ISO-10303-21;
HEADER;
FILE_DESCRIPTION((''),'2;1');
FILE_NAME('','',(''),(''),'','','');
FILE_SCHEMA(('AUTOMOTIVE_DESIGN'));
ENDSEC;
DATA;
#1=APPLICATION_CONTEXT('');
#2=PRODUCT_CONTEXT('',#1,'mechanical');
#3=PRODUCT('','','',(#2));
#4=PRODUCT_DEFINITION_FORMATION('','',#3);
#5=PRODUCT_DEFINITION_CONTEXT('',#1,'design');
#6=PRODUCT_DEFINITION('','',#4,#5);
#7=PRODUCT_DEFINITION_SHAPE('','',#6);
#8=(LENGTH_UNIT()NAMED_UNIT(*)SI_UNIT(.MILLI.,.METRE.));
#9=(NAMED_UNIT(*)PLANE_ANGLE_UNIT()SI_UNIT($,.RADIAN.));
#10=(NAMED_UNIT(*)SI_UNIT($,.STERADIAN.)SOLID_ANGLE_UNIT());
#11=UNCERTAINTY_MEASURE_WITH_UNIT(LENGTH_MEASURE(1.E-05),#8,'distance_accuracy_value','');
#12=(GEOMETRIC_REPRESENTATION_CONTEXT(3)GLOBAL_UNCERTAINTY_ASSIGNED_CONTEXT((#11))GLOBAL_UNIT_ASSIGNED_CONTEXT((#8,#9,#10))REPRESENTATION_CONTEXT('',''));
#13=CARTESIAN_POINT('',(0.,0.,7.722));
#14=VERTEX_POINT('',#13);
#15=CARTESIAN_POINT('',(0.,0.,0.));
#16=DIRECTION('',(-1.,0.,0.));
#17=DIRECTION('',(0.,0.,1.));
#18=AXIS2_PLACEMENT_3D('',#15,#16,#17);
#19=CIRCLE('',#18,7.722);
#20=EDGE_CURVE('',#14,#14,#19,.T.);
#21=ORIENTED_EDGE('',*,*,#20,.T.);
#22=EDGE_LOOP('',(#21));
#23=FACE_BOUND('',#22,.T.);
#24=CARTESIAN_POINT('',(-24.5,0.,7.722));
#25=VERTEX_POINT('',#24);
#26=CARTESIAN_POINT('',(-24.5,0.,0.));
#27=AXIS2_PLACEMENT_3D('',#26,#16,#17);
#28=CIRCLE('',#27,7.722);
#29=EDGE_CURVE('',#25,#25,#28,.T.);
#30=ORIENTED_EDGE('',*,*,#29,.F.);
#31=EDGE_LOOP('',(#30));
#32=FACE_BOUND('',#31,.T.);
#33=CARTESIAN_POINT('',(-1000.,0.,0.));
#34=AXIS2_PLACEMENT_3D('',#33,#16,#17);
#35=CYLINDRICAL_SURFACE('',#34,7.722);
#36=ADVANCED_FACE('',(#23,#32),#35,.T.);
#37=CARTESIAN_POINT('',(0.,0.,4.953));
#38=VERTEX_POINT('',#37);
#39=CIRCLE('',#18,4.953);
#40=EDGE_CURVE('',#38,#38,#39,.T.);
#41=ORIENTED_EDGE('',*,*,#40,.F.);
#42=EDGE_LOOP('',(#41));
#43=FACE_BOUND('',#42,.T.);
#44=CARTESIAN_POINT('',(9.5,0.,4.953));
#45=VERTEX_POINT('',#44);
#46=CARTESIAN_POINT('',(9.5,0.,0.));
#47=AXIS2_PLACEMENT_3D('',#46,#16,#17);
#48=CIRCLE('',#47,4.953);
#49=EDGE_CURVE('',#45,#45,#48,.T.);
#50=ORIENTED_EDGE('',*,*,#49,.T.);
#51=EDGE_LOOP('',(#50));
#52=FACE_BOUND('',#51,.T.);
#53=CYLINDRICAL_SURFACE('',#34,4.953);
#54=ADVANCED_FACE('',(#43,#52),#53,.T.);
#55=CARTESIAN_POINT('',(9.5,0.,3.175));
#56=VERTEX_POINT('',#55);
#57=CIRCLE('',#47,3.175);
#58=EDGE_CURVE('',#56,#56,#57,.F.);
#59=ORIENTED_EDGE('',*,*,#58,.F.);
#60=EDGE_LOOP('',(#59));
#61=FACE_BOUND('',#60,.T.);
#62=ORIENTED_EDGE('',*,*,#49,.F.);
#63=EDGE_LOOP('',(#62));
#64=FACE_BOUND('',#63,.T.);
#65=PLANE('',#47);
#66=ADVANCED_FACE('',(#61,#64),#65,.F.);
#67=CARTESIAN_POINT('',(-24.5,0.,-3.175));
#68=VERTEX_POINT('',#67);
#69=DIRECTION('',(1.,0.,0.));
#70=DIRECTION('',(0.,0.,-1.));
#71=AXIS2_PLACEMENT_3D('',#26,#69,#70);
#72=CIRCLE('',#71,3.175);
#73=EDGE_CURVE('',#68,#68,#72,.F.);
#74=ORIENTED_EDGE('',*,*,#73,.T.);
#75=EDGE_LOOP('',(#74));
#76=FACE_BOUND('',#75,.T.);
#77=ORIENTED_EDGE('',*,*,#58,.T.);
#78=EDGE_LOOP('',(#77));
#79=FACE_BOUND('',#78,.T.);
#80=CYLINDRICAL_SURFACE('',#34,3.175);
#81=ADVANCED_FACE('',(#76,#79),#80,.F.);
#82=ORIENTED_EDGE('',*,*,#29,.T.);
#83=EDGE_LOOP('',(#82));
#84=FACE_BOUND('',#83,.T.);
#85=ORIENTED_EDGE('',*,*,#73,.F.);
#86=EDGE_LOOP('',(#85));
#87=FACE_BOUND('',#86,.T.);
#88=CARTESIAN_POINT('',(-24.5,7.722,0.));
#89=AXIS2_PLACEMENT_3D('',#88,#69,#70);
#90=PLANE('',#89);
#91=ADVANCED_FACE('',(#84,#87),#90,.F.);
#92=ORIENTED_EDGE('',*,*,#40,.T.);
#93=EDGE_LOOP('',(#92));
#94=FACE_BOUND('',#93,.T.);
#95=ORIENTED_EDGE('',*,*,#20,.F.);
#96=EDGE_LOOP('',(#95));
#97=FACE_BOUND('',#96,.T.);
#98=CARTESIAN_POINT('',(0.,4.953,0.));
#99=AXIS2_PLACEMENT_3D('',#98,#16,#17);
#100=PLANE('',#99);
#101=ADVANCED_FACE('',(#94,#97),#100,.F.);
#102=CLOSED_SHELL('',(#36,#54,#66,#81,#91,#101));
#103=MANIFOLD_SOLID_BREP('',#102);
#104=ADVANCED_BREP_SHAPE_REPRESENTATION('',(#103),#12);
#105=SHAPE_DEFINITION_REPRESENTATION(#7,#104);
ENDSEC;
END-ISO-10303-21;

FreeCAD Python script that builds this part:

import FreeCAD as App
import Part
import Sketcher
Q = App.Units.Quantity


def add_polygon(sketch, points):
    """Adds a closed chain of lines whose ends are joined by coincident constraints."""
    first, n = sketch.GeometryCount, len(points)
    for a, b in zip(points, points[1:] + points[:1]):
        sketch.addGeometry(Part.LineSegment(App.Vector(*a, 0), App.Vector(*b, 0)), False)
    for i in range(n):
        sketch.addConstraint(Sketcher.Constraint("Coincident", first + i, 2, first + (i + 1) % n, 1))

doc = App.newDocument("Part")
params = doc.addObject("Spreadsheet::Sheet", "Params")
for row, (alias, value) in enumerate([
    ("sketch1_width", "34 mm"),
    ("sketch1_width2", "9.5 mm"),
    ("revolution_angle", "360 deg"),
    ("sketch2_width", "36 mm"),
    ("groove_angle", "360 deg"),
], start=1):
    params.set(f"A{row}", alias)
    params.set(f"B{row}", "=" + value)
    params.setAlias(f"B{row}", alias)

body = doc.addObject("PartDesign::Body", "Body")

sketch1 = body.newObject("Sketcher::SketchObject", "Sketch")
sketch1.AttachmentSupport = (doc.getObject("XY_Plane"), [""])
sketch1.MapMode = "FlatFace"
add_polygon(sketch1, [(9.5, 0), (9.5, 5), (0, 5), (0, 7.7), (-24.5, 7.7), (-24.5, 0)])
sketch1.addConstraint([
    Sketcher.Constraint("Vertical", 0),
    Sketcher.Constraint("Horizontal", 1),
    Sketcher.Constraint("Vertical", 2),
    Sketcher.Constraint("Horizontal", 3),
    Sketcher.Constraint("Vertical", 4),
    Sketcher.Constraint("Horizontal", 5),
    Sketcher.Constraint("PointOnObject", 1, 2, -2),
    Sketcher.Constraint("PointOnObject", 4, 2, -1),
    Sketcher.Constraint("DistanceX", 5, 1, 5, 2, Q("34 mm")),
    Sketcher.Constraint("DistanceX", 1, 2, 1, 1, Q("9.5 mm")),
    Sketcher.Constraint("DistanceY", 0, 1, 0, 2, Q("4.953 mm")),
    Sketcher.Constraint("DistanceY", 2, 1, 2, 2, Q("2.769 mm")),
])
sketch1.setExpression("Constraints[14]", "Params.sketch1_width")
sketch1.setExpression("Constraints[15]", "Params.sketch1_width2")
revolution = body.newObject("PartDesign::Revolution", "Revolution")
revolution.Profile = sketch1
revolution.ReferenceAxis = (sketch1, ["H_Axis"])
revolution.setExpression("Angle", "Params.revolution_angle")

sketch2 = body.newObject("Sketcher::SketchObject", "Sketch001")
sketch2.AttachmentSupport = (doc.getObject("XY_Plane"), [""])
sketch2.MapMode = "FlatFace"
add_polygon(sketch2, [(-25.5, 3.2), (-25.5, 0), (10.5, 0), (10.5, 3.2)])
sketch2.addConstraint([
    Sketcher.Constraint("Vertical", 0),
    Sketcher.Constraint("Horizontal", 1),
    Sketcher.Constraint("Vertical", 2),
    Sketcher.Constraint("Horizontal", 3),
    Sketcher.Constraint("PointOnObject", 0, 2, -1),
    Sketcher.Constraint("DistanceX", 1, 1, 1, 2, Q("36 mm")),
    Sketcher.Constraint("DistanceX", 0, 2, -1, 1, Q("25.5 mm")),
    Sketcher.Constraint("DistanceY", 0, 2, 0, 1, Q("3.175 mm")),
])
sketch2.setExpression("Constraints[9]", "Params.sketch2_width")
groove = body.newObject("PartDesign::Groove", "Groove")
groove.Profile = sketch2
groove.ReferenceAxis = (sketch2, ["H_Axis"])
groove.setExpression("Angle", "Params.groove_angle")

doc.recompute()
